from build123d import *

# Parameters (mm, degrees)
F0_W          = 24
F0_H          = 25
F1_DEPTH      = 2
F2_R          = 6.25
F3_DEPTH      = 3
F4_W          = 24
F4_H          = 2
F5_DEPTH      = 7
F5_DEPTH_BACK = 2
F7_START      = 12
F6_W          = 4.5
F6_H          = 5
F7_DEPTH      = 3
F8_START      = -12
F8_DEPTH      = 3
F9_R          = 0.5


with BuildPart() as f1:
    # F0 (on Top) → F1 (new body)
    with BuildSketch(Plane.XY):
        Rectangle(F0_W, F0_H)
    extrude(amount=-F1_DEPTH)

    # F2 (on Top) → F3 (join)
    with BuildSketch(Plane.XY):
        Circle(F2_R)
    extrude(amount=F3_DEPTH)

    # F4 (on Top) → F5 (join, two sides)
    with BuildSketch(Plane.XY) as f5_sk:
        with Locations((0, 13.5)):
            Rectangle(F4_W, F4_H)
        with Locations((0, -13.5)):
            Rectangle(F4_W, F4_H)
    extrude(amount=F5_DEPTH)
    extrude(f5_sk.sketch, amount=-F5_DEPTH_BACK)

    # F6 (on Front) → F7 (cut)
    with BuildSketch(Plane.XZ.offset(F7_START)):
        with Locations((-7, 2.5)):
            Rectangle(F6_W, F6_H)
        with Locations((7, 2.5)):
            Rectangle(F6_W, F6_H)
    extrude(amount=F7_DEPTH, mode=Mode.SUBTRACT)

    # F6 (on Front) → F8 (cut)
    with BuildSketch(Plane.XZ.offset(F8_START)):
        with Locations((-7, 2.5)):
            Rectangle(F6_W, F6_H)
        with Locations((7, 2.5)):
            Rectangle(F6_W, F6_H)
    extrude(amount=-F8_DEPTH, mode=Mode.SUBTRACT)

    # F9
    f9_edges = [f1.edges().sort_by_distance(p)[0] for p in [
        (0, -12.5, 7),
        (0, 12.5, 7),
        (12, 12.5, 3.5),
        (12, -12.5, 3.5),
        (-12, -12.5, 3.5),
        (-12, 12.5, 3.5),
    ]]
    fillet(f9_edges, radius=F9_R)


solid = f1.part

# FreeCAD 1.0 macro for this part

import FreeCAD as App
import Part
import Sketcher


def edges_at(feature, points):
    """Names of the edges that pass closest to the given points."""
    edges = feature.Shape.Edges
    near = lambda p: min(range(len(edges)), key=lambda i: edges[i].distToShape(Part.Vertex(*p))[0])
    return sorted({f"Edge{near(p) + 1}" for p in points})

doc = App.newDocument("Part")
params = doc.addObject("Spreadsheet::Sheet", "Params")
for row, (alias, value) in enumerate([
    ("sketch1_width", "24 mm"),
    ("sketch1_height", "25 mm"),
    ("pad1_length", "2 mm"),
    ("sketch2_diameter", "12.5 mm"),
    ("pad2_length", "3 mm"),
    ("sketch3_width", "24 mm"),
    ("sketch3_height", "2 mm"),
    ("pad3_length", "7 mm"),
    ("pad3_length2", "2 mm"),
    ("sketch4_height", "5 mm"),
    ("sketch4_width", "4.5 mm"),
    ("pocket1_length", "3 mm"),
    ("sketch5_height", "5 mm"),
    ("sketch5_width", "4.5 mm"),
    ("pocket2_length", "3 mm"),
    ("fillet_radius", "0.5 mm"),
], start=1):
    params.set(f"A{row}", alias)
    params.set(f"B{row}", "=" + value)
    params.setAlias(f"B{row}", alias)

body = doc.addObject("PartDesign::Body", "Body")

sketch1 = doc.addObject("Sketcher::SketchObject", "Sketch")
body.addObject(sketch1)
sketch1.AttachmentSupport = (doc.XY_Plane, [""])
sketch1.MapMode = "FlatFace"
sketch1.addGeometry([
    Part.LineSegment(App.Vector(-12, 12, 0), App.Vector(-12, -12, 0)),
    Part.LineSegment(App.Vector(-12, -12, 0), App.Vector(12, -12, 0)),
    Part.LineSegment(App.Vector(12, -12, 0), App.Vector(12, 12, 0)),
    Part.LineSegment(App.Vector(12, 12, 0), App.Vector(-12, 12, 0)),
], False)
sketch1.addConstraint([
    Sketcher.Constraint("Coincident", 0, 2, 1, 1),
    Sketcher.Constraint("Coincident", 1, 2, 2, 1),
    Sketcher.Constraint("Coincident", 2, 2, 3, 1),
    Sketcher.Constraint("Coincident", 3, 2, 0, 1),
    Sketcher.Constraint("Vertical", 0),
    Sketcher.Constraint("Horizontal", 1),
    Sketcher.Constraint("Vertical", 2),
    Sketcher.Constraint("Horizontal", 3),
    Sketcher.Constraint("Symmetric", 0, 2, 2, 2, -1, 1),
    Sketcher.Constraint("DistanceX", 1, 1, 1, 2, 24.0),
    Sketcher.Constraint("DistanceY", 0, 2, 0, 1, 25.0),
])
sketch1.setExpression("Constraints[9]", "Params.sketch1_width")
sketch1.setExpression("Constraints[10]", "Params.sketch1_height")
pad1 = doc.addObject("PartDesign::Pad", "Pad")
body.addObject(pad1)
pad1.Profile = sketch1
pad1.setExpression("Length", "Params.pad1_length")
pad1.Reversed = True

sketch2 = doc.addObject("Sketcher::SketchObject", "Sketch001")
body.addObject(sketch2)
sketch2.AttachmentSupport = (doc.XY_Plane, [""])
sketch2.MapMode = "FlatFace"
sketch2.addGeometry(Part.Circle(App.Vector(0, 0, 0), App.Vector(0, 0, 1), 6), False)
sketch2.addConstraint([
    Sketcher.Constraint("Coincident", 0, 3, -1, 1),
    Sketcher.Constraint("Diameter", 0, 12.5),
])
sketch2.setExpression("Constraints[1]", "Params.sketch2_diameter")
pad2 = doc.addObject("PartDesign::Pad", "Pad001")
body.addObject(pad2)
pad2.Profile = sketch2
pad2.setExpression("Length", "Params.pad2_length")

sketch3 = doc.addObject("Sketcher::SketchObject", "Sketch002")
body.addObject(sketch3)
sketch3.AttachmentSupport = (doc.XY_Plane, [""])
sketch3.MapMode = "FlatFace"
sketch3.addGeometry([
    Part.LineSegment(App.Vector(-12, 14.5, 0), App.Vector(-12, 12.5, 0)),
    Part.LineSegment(App.Vector(-12, 12.5, 0), App.Vector(12, 12.5, 0)),
    Part.LineSegment(App.Vector(12, 12.5, 0), App.Vector(12, 14.5, 0)),
    Part.LineSegment(App.Vector(12, 14.5, 0), App.Vector(-12, 14.5, 0)),
    Part.LineSegment(App.Vector(-12, -12.5, 0), App.Vector(-12, -14.5, 0)),
    Part.LineSegment(App.Vector(-12, -14.5, 0), App.Vector(12, -14.5, 0)),
    Part.LineSegment(App.Vector(12, -14.5, 0), App.Vector(12, -12.5, 0)),
    Part.LineSegment(App.Vector(12, -12.5, 0), App.Vector(-12, -12.5, 0)),
], False)
sketch3.addConstraint([
    Sketcher.Constraint("Coincident", 0, 2, 1, 1),
    Sketcher.Constraint("Coincident", 1, 2, 2, 1),
    Sketcher.Constraint("Coincident", 2, 2, 3, 1),
    Sketcher.Constraint("Coincident", 3, 2, 0, 1),
    Sketcher.Constraint("Coincident", 4, 2, 5, 1),
    Sketcher.Constraint("Coincident", 5, 2, 6, 1),
    Sketcher.Constraint("Coincident", 6, 2, 7, 1),
    Sketcher.Constraint("Coincident", 7, 2, 4, 1),
    Sketcher.Constraint("Vertical", 0),
    Sketcher.Constraint("Horizontal", 1),
    Sketcher.Constraint("Vertical", 2),
    Sketcher.Constraint("Horizontal", 3),
    Sketcher.Constraint("Vertical", 4),
    Sketcher.Constraint("Horizontal", 5),
    Sketcher.Constraint("Vertical", 6),
    Sketcher.Constraint("Horizontal", 7),
    Sketcher.Constraint("Symmetric", 2, 2, 4, 2, -1, 1),
    Sketcher.Constraint("Symmetric", 0, 2, 6, 2, -1, 1),
    Sketcher.Constraint("Vertical", 3, 2, 4, 2),
    Sketcher.Constraint("DistanceX", 1, 1, 1, 2, 24.0),
    Sketcher.Constraint("DistanceY", 0, 2, 0, 1, 2.0),
    Sketcher.Constraint("DistanceY", 4, 2, 0, 2, 27.0),
])
sketch3.setExpression("Constraints[19]", "Params.sketch3_width")
sketch3.setExpression("Constraints[20]", "Params.sketch3_height")
pad3 = doc.addObject("PartDesign::Pad", "Pad002")
body.addObject(pad3)
pad3.Profile = sketch3
pad3.Type = "TwoLengths"
pad3.setExpression("Length", "Params.pad3_length")
pad3.setExpression("Length2", "Params.pad3_length2")

sketch4 = doc.addObject("Sketcher::SketchObject", "Sketch003")
body.addObject(sketch4)
sketch4.AttachmentSupport = (doc.XZ_Plane, [""])
sketch4.MapMode = "FlatFace"
sketch4.AttachmentOffset = App.Placement(App.Vector(0, 0, 12), App.Rotation())
sketch4.addGeometry([
    Part.LineSegment(App.Vector(-9.2, 5, 0), App.Vector(-9.2, 0, 0)),
    Part.LineSegment(App.Vector(-9.2, 0, 0), App.Vector(-4.8, 0, 0)),
    Part.LineSegment(App.Vector(-4.8, 0, 0), App.Vector(-4.8, 5, 0)),
    Part.LineSegment(App.Vector(-4.8, 5, 0), App.Vector(-9.2, 5, 0)),
    Part.LineSegment(App.Vector(4.8, 5, 0), App.Vector(4.8, 0, 0)),
    Part.LineSegment(App.Vector(4.8, 0, 0), App.Vector(9.2, 0, 0)),
    Part.LineSegment(App.Vector(9.2, 0, 0), App.Vector(9.2, 5, 0)),
    Part.LineSegment(App.Vector(9.2, 5, 0), App.Vector(4.8, 5, 0)),
], False)
sketch4.addConstraint([
    Sketcher.Constraint("Coincident", 0, 2, 1, 1),
    Sketcher.Constraint("Coincident", 1, 2, 2, 1),
    Sketcher.Constraint("Coincident", 2, 2, 3, 1),
    Sketcher.Constraint("Coincident", 3, 2, 0, 1),
    Sketcher.Constraint("Coincident", 4, 2, 5, 1),
    Sketcher.Constraint("Coincident", 5, 2, 6, 1),
    Sketcher.Constraint("Coincident", 6, 2, 7, 1),
    Sketcher.Constraint("Coincident", 7, 2, 4, 1),
    Sketcher.Constraint("Vertical", 0),
    Sketcher.Constraint("Horizontal", 1),
    Sketcher.Constraint("Vertical", 2),
    Sketcher.Constraint("Horizontal", 3),
    Sketcher.Constraint("Vertical", 4),
    Sketcher.Constraint("Horizontal", 5),
    Sketcher.Constraint("Vertical", 6),
    Sketcher.Constraint("Horizontal", 7),
    Sketcher.Constraint("Symmetric", 1, 2, 4, 2, -1, 1),
    Sketcher.Constraint("Symmetric", 0, 2, 5, 2, -2),
    Sketcher.Constraint("Horizontal", 3, 2, 6, 2),
    Sketcher.Constraint("DistanceY", 0, 2, 0, 1, 5.0),
    Sketcher.Constraint("DistanceX", 1, 1, 1, 2, 4.5),
    Sketcher.Constraint("DistanceX", 0, 2, 4, 2, 14.0),
])
sketch4.setExpression("Constraints[19]", "Params.sketch4_height")
sketch4.setExpression("Constraints[20]", "Params.sketch4_width")
pocket1 = doc.addObject("PartDesign::Pocket", "Pocket")
body.addObject(pocket1)
pocket1.Profile = sketch4
pocket1.setExpression("Length", "Params.pocket1_length")
pocket1.Reversed = True

sketch5 = doc.addObject("Sketcher::SketchObject", "Sketch004")
body.addObject(sketch5)
sketch5.AttachmentSupport = (doc.XZ_Plane, [""])
sketch5.MapMode = "FlatFace"
sketch5.AttachmentOffset = App.Placement(App.Vector(0, 0, -12), App.Rotation())
sketch5.addGeometry([
    Part.LineSegment(App.Vector(-9.2, 5, 0), App.Vector(-9.2, 0, 0)),
    Part.LineSegment(App.Vector(-9.2, 0, 0), App.Vector(-4.8, 0, 0)),
    Part.LineSegment(App.Vector(-4.8, 0, 0), App.Vector(-4.8, 5, 0)),
    Part.LineSegment(App.Vector(-4.8, 5, 0), App.Vector(-9.2, 5, 0)),
    Part.LineSegment(App.Vector(4.8, 5, 0), App.Vector(4.8, 0, 0)),
    Part.LineSegment(App.Vector(4.8, 0, 0), App.Vector(9.2, 0, 0)),
    Part.LineSegment(App.Vector(9.2, 0, 0), App.Vector(9.2, 5, 0)),
    Part.LineSegment(App.Vector(9.2, 5, 0), App.Vector(4.8, 5, 0)),
], False)
sketch5.addConstraint([
    Sketcher.Constraint("Coincident", 0, 2, 1, 1),
    Sketcher.Constraint("Coincident", 1, 2, 2, 1),
    Sketcher.Constraint("Coincident", 2, 2, 3, 1),
    Sketcher.Constraint("Coincident", 3, 2, 0, 1),
    Sketcher.Constraint("Coincident", 4, 2, 5, 1),
    Sketcher.Constraint("Coincident", 5, 2, 6, 1),
    Sketcher.Constraint("Coincident", 6, 2, 7, 1),
    Sketcher.Constraint("Coincident", 7, 2, 4, 1),
    Sketcher.Constraint("Vertical", 0),
    Sketcher.Constraint("Horizontal", 1),
    Sketcher.Constraint("Vertical", 2),
    Sketcher.Constraint("Horizontal", 3),
    Sketcher.Constraint("Vertical", 4),
    Sketcher.Constraint("Horizontal", 5),
    Sketcher.Constraint("Vertical", 6),
    Sketcher.Constraint("Horizontal", 7),
    Sketcher.Constraint("Symmetric", 1, 2, 4, 2, -1, 1),
    Sketcher.Constraint("Symmetric", 0, 2, 5, 2, -2),
    Sketcher.Constraint("Horizontal", 3, 2, 6, 2),
    Sketcher.Constraint("DistanceY", 0, 2, 0, 1, 5.0),
    Sketcher.Constraint("DistanceX", 1, 1, 1, 2, 4.5),
    Sketcher.Constraint("DistanceX", 0, 2, 4, 2, 14.0),
])
sketch5.setExpression("Constraints[19]", "Params.sketch5_height")
sketch5.setExpression("Constraints[20]", "Params.sketch5_width")
pocket2 = doc.addObject("PartDesign::Pocket", "Pocket001")
body.addObject(pocket2)
pocket2.Profile = sketch5
pocket2.setExpression("Length", "Params.pocket2_length")
doc.recompute()

fillet = doc.addObject("PartDesign::Fillet", "Fillet")
body.addObject(fillet)
fillet.Base = (pocket2, edges_at(pocket2, [
    (0, -12.5, 7),
    (0, 12.5, 7),
    (12, 12.5, 3.5),
    (12, -12.5, 3.5),
    (-12, -12.5, 3.5),
    (-12, 12.5, 3.5),
]))
fillet.setExpression("Radius", "Params.fillet_radius")

doc.recompute()
